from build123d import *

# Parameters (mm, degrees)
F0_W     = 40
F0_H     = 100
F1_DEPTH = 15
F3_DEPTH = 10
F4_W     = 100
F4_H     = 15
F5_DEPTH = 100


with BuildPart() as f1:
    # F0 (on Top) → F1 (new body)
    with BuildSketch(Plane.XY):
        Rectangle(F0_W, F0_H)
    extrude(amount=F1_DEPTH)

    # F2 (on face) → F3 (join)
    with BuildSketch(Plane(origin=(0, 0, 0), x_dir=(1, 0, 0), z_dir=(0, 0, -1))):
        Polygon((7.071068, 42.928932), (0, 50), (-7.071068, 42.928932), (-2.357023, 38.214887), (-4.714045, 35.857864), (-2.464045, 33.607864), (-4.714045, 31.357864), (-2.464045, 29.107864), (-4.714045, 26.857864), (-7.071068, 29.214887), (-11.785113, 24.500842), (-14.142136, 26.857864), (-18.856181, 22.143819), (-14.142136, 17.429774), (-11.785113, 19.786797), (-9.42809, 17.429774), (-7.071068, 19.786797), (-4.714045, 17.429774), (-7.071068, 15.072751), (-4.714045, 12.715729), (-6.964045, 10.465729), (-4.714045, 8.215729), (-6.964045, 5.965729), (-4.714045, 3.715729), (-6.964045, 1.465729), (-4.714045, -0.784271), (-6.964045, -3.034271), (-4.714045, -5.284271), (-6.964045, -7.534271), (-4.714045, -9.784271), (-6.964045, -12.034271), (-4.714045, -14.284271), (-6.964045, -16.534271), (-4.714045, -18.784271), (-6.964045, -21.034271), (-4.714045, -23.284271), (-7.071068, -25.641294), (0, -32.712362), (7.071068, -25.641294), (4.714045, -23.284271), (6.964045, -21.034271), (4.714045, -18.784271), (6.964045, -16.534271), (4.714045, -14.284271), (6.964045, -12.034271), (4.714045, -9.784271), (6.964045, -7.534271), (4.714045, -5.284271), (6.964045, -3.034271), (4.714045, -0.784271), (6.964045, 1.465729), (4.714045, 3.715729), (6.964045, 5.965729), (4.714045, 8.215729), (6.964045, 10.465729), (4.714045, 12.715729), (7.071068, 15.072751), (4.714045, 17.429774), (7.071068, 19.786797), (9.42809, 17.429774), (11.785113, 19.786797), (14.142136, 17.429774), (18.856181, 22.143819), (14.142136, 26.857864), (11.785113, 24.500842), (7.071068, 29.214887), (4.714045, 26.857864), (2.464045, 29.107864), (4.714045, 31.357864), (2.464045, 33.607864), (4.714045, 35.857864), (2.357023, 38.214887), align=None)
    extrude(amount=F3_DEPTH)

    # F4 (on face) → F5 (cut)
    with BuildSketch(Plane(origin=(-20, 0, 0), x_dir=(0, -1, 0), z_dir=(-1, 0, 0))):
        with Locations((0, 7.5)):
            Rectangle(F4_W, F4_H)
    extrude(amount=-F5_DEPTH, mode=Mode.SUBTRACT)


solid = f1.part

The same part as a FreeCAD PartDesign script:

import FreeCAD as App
import Part
import Sketcher


def add_polygon(sketch, points):
    """Adds a closed chain of lines whose ends are joined by coincident constraints."""
    first, n = sketch.GeometryCount, len(points)
    for a, b in zip(points, points[1:] + points[:1]):
        sketch.addGeometry(Part.LineSegment(App.Vector(*a, 0), App.Vector(*b, 0)), False)
    for i in range(n):
        sketch.addConstraint(Sketcher.Constraint("Coincident", first + i, 2, first + (i + 1) % n, 1))

doc = App.newDocument("Part")
params = doc.addObject("Spreadsheet::Sheet", "Params")
for row, (alias, value) in enumerate([
    ("sketch1_width", "40 mm"),
    ("sketch1_height", "100 mm"),
    ("pad1_length", "15 mm"),
    ("sketch2_length", "10 mm"),
    ("pad2_length", "10 mm"),
    ("sketch3_width", "100 mm"),
    ("sketch3_height", "15 mm"),
    ("pocket1_length", "100 mm"),
], start=1):
    params.set(f"A{row}", alias)
    params.set(f"B{row}", "=" + value)
    params.setAlias(f"B{row}", alias)

body = doc.addObject("PartDesign::Body", "Body")

# Sketch on XY plane
sketch1 = body.newObject("Sketcher::SketchObject", "Sketch")
sketch1.AttachmentSupport = (doc.getObject("XY_Plane"), [""])
sketch1.MapMode = "FlatFace"
add_polygon(sketch1, [(-20, 50), (-20, -50), (20, -50), (20, 50)])  # lines 0-3
sketch1.addConstraint(Sketcher.Constraint("Vertical", 0))
sketch1.addConstraint(Sketcher.Constraint("Horizontal", 1))
sketch1.addConstraint(Sketcher.Constraint("Vertical", 2))
sketch1.addConstraint(Sketcher.Constraint("Horizontal", 3))
sketch1.addConstraint(Sketcher.Constraint("Symmetric", 0, 2, 2, 2, -1, 1))
sketch1.addConstraint(Sketcher.Constraint("DistanceX", 1, 1, 1, 2, 40.0))
sketch1.addConstraint(Sketcher.Constraint("DistanceY", 0, 2, 0, 1, 100.0))
sketch1.setExpression("Constraints[9]", "Params.sketch1_width")
sketch1.setExpression("Constraints[10]", "Params.sketch1_height")
pad1 = body.newObject("PartDesign::Pad", "Pad")
pad1.Profile = sketch1
pad1.setExpression("Length", "Params.pad1_length")

# Sketch on XY plane
sketch2 = body.newObject("Sketcher::SketchObject", "Sketch001")
sketch2.AttachmentSupport = (doc.getObject("XY_Plane"), [""])
sketch2.MapMode = "FlatFace"
add_polygon(sketch2, [(7.071068, -42.928932), (0, -50), (-7.071068, -42.928932), (-2.357023, -38.214887), (-4.714045, -35.857864), (-2.464045, -33.607864), (-4.714045, -31.357864), (-2.464045, -29.107864), (-4.714045, -26.857864), (-7.071068, -29.214887), (-11.785113, -24.500842), (-14.142136, -26.857864), (-18.856181, -22.143819), (-14.142136, -17.429774), (-11.785113, -19.786797), (-9.42809, -17.429774), (-7.071068, -19.786797), (-4.714045, -17.429774), (-7.071068, -15.072751), (-4.714045, -12.715729), (-6.964045, -10.465729), (-4.714045, -8.215729), (-6.964045, -5.965729), (-4.714045, -3.715729), (-6.964045, -1.465729), (-4.714045, 0.784271), (-6.964045, 3.034271), (-4.714045, 5.284271), (-6.964045, 7.534271), (-4.714045, 9.784271), (-6.964045, 12.034271), (-4.714045, 14.284271), (-6.964045, 16.534271), (-4.714045, 18.784271), (-6.964045, 21.034271), (-4.714045, 23.284271), (-7.071068, 25.641294), (0, 32.712362), (7.071068, 25.641294), (4.714045, 23.284271), (6.964045, 21.034271), (4.714045, 18.784271), (6.964045, 16.534271), (4.714045, 14.284271), (6.964045, 12.034271), (4.714045, 9.784271), (6.964045, 7.534271), (4.714045, 5.284271), (6.964045, 3.034271), (4.714045, 0.784271), (6.964045, -1.465729), (4.714045, -3.715729), (6.964045, -5.965729), (4.714045, -8.215729), (6.964045, -10.465729), (4.714045, -12.715729), (7.071068, -15.072751), (4.714045, -17.429774), (7.071068, -19.786797), (9.42809, -17.429774), (11.785113, -19.786797), (14.142136, -17.429774), (18.856181, -22.143819), (14.142136, -26.857864), (11.785113, -24.500842), (7.071068, -29.214887), (4.714045, -26.857864), (2.464045, -29.107864), (4.714045, -31.357864), (2.464045, -33.607864), (4.714045, -35.857864), (2.357023, -38.214887)])  # lines 0-71
sketch2.addConstraint(Sketcher.Constraint("Symmetric", 35, 2, 37, 2, -2))
sketch2.addConstraint(Sketcher.Constraint("Symmetric", 34, 2, 38, 2, -2))
sketch2.addConstraint(Sketcher.Constraint("Symmetric", 33, 2, 39, 2, -2))
sketch2.addConstraint(Sketcher.Constraint("Symmetric", 32, 2, 40, 2, -2))
sketch2.addConstraint(Sketcher.Constraint("Symmetric", 31, 2, 41, 2, -2))
sketch2.addConstraint(Sketcher.Constraint("Symmetric", 30, 2, 42, 2, -2))
sketch2.addConstraint(Sketcher.Constraint("Symmetric", 29, 2, 43, 2, -2))
sketch2.addConstraint(Sketcher.Constraint("Symmetric", 28, 2, 44, 2, -2))
sketch2.addConstraint(Sketcher.Constraint("Symmetric", 27, 2, 45, 2, -2))
sketch2.addConstraint(Sketcher.Constraint("Symmetric", 26, 2, 46, 2, -2))
sketch2.addConstraint(Sketcher.Constraint("Symmetric", 25, 2, 47, 2, -2))
sketch2.addConstraint(Sketcher.Constraint("Symmetric", 24, 2, 48, 2, -2))
sketch2.addConstraint(Sketcher.Constraint("Symmetric", 23, 2, 49, 2, -2))
sketch2.addConstraint(Sketcher.Constraint("Symmetric", 22, 2, 50, 2, -2))
sketch2.addConstraint(Sketcher.Constraint("Symmetric", 21, 2, 51, 2, -2))
sketch2.addConstraint(Sketcher.Constraint("Symmetric", 20, 2, 52, 2, -2))
sketch2.addConstraint(Sketcher.Constraint("Symmetric", 19, 2, 53, 2, -2))
sketch2.addConstraint(Sketcher.Constraint("Symmetric", 18, 2, 54, 2, -2))
sketch2.addConstraint(Sketcher.Constraint("Symmetric", 17, 2, 55, 2, -2))
sketch2.addConstraint(Sketcher.Constraint("Symmetric", 16, 2, 56, 2, -2))
sketch2.addConstraint(Sketcher.Constraint("Symmetric", 15, 2, 57, 2, -2))
sketch2.addConstraint(Sketcher.Constraint("Symmetric", 14, 2, 58, 2, -2))
sketch2.addConstraint(Sketcher.Constraint("Symmetric", 13, 2, 59, 2, -2))
sketch2.addConstraint(Sketcher.Constraint("Symmetric", 12, 2, 60, 2, -2))
sketch2.addConstraint(Sketcher.Constraint("Symmetric", 11, 2, 61, 2, -2))
sketch2.addConstraint(Sketcher.Constraint("Symmetric", 10, 2, 62, 2, -2))
sketch2.addConstraint(Sketcher.Constraint("Symmetric", 9, 2, 63, 2, -2))
sketch2.addConstraint(Sketcher.Constraint("Symmetric", 8, 2, 64, 2, -2))
sketch2.addConstraint(Sketcher.Constraint("Symmetric", 7, 2, 65, 2, -2))
sketch2.addConstraint(Sketcher.Constraint("Symmetric", 6, 2, 66, 2, -2))
sketch2.addConstraint(Sketcher.Constraint("Symmetric", 5, 2, 67, 2, -2))
sketch2.addConstraint(Sketcher.Constraint("Symmetric", 4, 2, 68, 2, -2))
sketch2.addConstraint(Sketcher.Constraint("Symmetric", 3, 2, 69, 2, -2))
sketch2.addConstraint(Sketcher.Constraint("Symmetric", 2, 2, 70, 2, -2))
sketch2.addConstraint(Sketcher.Constraint("Symmetric", 1, 2, 71, 2, -2))
sketch2.addConstraint(Sketcher.Constraint("PointOnObject", 0, 2, -2))
sketch2.addConstraint(Sketcher.Constraint("PointOnObject", 36, 2, -2))
sketch2.addConstraint(Sketcher.Constraint("Perpendicular", 0, 1))
sketch2.addConstraint(Sketcher.Constraint("Perpendicular", 1, 2))
sketch2.addConstraint(Sketcher.Constraint("Perpendicular", 2, 3))
sketch2.addConstraint(Sketcher.Constraint("Perpendicular", 3, 4))
sketch2.addConstraint(Sketcher.Constraint("Perpendicular", 4, 5))
sketch2.addConstraint(Sketcher.Constraint("Perpendicular", 5, 6))
sketch2.addConstraint(Sketcher.Constraint("Perpendicular", 6, 7))
sketch2.addConstraint(Sketcher.Constraint("Perpendicular", 7, 8))
sketch2.addConstraint(Sketcher.Constraint("Perpendicular", 8, 9))
sketch2.addConstraint(Sketcher.Constraint("Perpendicular", 9, 10))
sketch2.addConstraint(Sketcher.Constraint("Perpendicular", 10, 11))
sketch2.addConstraint(Sketcher.Constraint("Perpendicular", 11, 12))
sketch2.addConstraint(Sketcher.Constraint("Perpendicular", 12, 13))
sketch2.addConstraint(Sketcher.Constraint("Perpendicular", 13, 14))
sketch2.addConstraint(Sketcher.Constraint("Perpendicular", 14, 15))
sketch2.addConstraint(Sketcher.Constraint("Perpendicular", 15, 16))
sketch2.addConstraint(Sketcher.Constraint("Perpendicular", 16, 17))
sketch2.addConstraint(Sketcher.Constraint("Perpendicular", 17, 18))
sketch2.addConstraint(Sketcher.Constraint("Perpendicular", 18, 19))
sketch2.addConstraint(Sketcher.Constraint("Perpendicular", 19, 20))
sketch2.addConstraint(Sketcher.Constraint("Perpendicular", 20, 21))
sketch2.addConstraint(Sketcher.Constraint("Perpendicular", 21, 22))
sketch2.addConstraint(Sketcher.Constraint("Perpendicular", 22, 23))
sketch2.addConstraint(Sketcher.Constraint("Perpendicular", 23, 24))
sketch2.addConstraint(Sketcher.Constraint("Perpendicular", 24, 25))
sketch2.addConstraint(Sketcher.Constraint("Perpendicular", 25, 26))
sketch2.addConstraint(Sketcher.Constraint("Perpendicular", 26, 27))
sketch2.addConstraint(Sketcher.Constraint("Perpendicular", 27, 28))
sketch2.addConstraint(Sketcher.Constraint("Perpendicular", 28, 29))
sketch2.addConstraint(Sketcher.Constraint("Perpendicular", 29, 30))
sketch2.addConstraint(Sketcher.Constraint("Perpendicular", 30, 31))
sketch2.addConstraint(Sketcher.Constraint("Perpendicular", 31, 32))
sketch2.addConstraint(Sketcher.Constraint("Perpendicular", 32, 33))
sketch2.addConstraint(Sketcher.Constraint("Perpendicular", 33, 34))
sketch2.addConstraint(Sketcher.Constraint("Perpendicular", 34, 35))
sketch2.addConstraint(Sketcher.Constraint("Perpendicular", 35, 36))
sketch2.addConstraint(Sketcher.Constraint("Horizontal", 7, 2, 10, 2))
sketch2.addConstraint(Sketcher.Constraint("Horizontal", 12, 2, 14, 2))
sketch2.addConstraint(Sketcher.Constraint("Horizontal", 13, 2, 15, 2))
sketch2.addConstraint(Sketcher.Constraint("Horizontal", 14, 2, 16, 2))
sketch2.addConstraint(Sketcher.Constraint("Vertical", 3, 2, 5, 2))
sketch2.addConstraint(Sketcher.Constraint("Vertical", 4, 2, 6, 2))
sketch2.addConstraint(Sketcher.Constraint("Vertical", 5, 2, 7, 2))
sketch2.addConstraint(Sketcher.Constraint("Vertical", 1, 2, 8, 2))
sketch2.addConstraint(Sketcher.Constraint("Vertical", 10, 2, 12, 2))
sketch2.addConstraint(Sketcher.Constraint("Vertical", 9, 2, 13, 2))
sketch2.addConstraint(Sketcher.Constraint("Vertical", 8, 2, 15, 2))
sketch2.addConstraint(Sketcher.Constraint("Vertical", 15, 2, 17, 2))
sketch2.addConstraint(Sketcher.Constraint("Vertical", 16, 2, 18, 2))
sketch2.addConstraint(Sketcher.Constraint("Vertical", 18, 2, 20, 2))
sketch2.addConstraint(Sketcher.Constraint("Vertical", 19, 2, 21, 2))
sketch2.addConstraint(Sketcher.Constraint("Vertical", 20, 2, 22, 2))
sketch2.addConstraint(Sketcher.Constraint("Vertical", 21, 2, 23, 2))
sketch2.addConstraint(Sketcher.Constraint("Vertical", 22, 2, 24, 2))
sketch2.addConstraint(Sketcher.Constraint("Vertical", 23, 2, 25, 2))
sketch2.addConstraint(Sketcher.Constraint("Vertical", 24, 2, 26, 2))
sketch2.addConstraint(Sketcher.Constraint("Vertical", 25, 2, 27, 2))
sketch2.addConstraint(Sketcher.Constraint("Vertical", 26, 2, 28, 2))
sketch2.addConstraint(Sketcher.Constraint("Vertical", 27, 2, 29, 2))
sketch2.addConstraint(Sketcher.Constraint("Vertical", 28, 2, 30, 2))
sketch2.addConstraint(Sketcher.Constraint("Vertical", 29, 2, 31, 2))
sketch2.addConstraint(Sketcher.Constraint("Vertical", 30, 2, 32, 2))
sketch2.addConstraint(Sketcher.Constraint("Vertical", 31, 2, 33, 2))
sketch2.addConstraint(Sketcher.Constraint("Vertical", 32, 2, 34, 2))
sketch2.addConstraint(Sketcher.Constraint("Vertical", 17, 2, 35, 2))
sketch2.addConstraint(Sketcher.Constraint("Equal", 3, 8))
sketch2.addConstraint(Sketcher.Constraint("Equal", 9, 11))
sketch2.addConstraint(Sketcher.Constraint("Equal", 7, 19))
sketch2.addConstraint(Sketcher.Constraint("Distance", 0, 10.0))
sketch2.addConstraint(Sketcher.Constraint("DistanceY", 0, 2, -1, 1, 50.0))
sketch2.addConstraint(Sketcher.Constraint("Distance", 4, 3.181981))
sketch2.addConstraint(Sketcher.Constraint("DistanceY", 9, 2, -1, 1, 24.500842))
sketch2.setExpression("Constraints[177]", "Params.sketch2_length")
pad2 = body.newObject("PartDesign::Pad", "Pad001")
pad2.Profile = sketch2
pad2.setExpression("Length", "Params.pad2_length")
pad2.Reversed = True

# Sketch on YZ plane
sketch3 = body.newObject("Sketcher::SketchObject", "Sketch002")
sketch3.AttachmentSupport = (doc.getObject("YZ_Plane"), [""])
sketch3.MapMode = "FlatFace"
sketch3.AttachmentOffset = App.Placement(App.Vector(0, 0, -20), App.Rotation())
add_polygon(sketch3, [(50, 15), (50, 0), (-50, 0), (-50, 15)])  # lines 0-3
sketch3.addConstraint(Sketcher.Constraint("Vertical", 0))
sketch3.addConstraint(Sketcher.Constraint("Horizontal", 1))
sketch3.addConstraint(Sketcher.Constraint("Vertical", 2))
sketch3.addConstraint(Sketcher.Constraint("Horizontal", 3))
sketch3.addConstraint(Sketcher.Constraint("Symmetric", 0, 2, 1, 2, -1, 1))
sketch3.addConstraint(Sketcher.Constraint("DistanceX", 1, 2, 1, 1, 100.0))
sketch3.addConstraint(Sketcher.Constraint("DistanceY", 0, 2, 0, 1, 15.0))
sketch3.setExpression("Constraints[9]", "Params.sketch3_width")
sketch3.setExpression("Constraints[10]", "Params.sketch3_height")
pocket1 = body.newObject("PartDesign::Pocket", "Pocket")
pocket1.Profile = sketch3
pocket1.setExpression("Length", "Params.pocket1_length")
pocket1.Reversed = True

doc.recompute()
